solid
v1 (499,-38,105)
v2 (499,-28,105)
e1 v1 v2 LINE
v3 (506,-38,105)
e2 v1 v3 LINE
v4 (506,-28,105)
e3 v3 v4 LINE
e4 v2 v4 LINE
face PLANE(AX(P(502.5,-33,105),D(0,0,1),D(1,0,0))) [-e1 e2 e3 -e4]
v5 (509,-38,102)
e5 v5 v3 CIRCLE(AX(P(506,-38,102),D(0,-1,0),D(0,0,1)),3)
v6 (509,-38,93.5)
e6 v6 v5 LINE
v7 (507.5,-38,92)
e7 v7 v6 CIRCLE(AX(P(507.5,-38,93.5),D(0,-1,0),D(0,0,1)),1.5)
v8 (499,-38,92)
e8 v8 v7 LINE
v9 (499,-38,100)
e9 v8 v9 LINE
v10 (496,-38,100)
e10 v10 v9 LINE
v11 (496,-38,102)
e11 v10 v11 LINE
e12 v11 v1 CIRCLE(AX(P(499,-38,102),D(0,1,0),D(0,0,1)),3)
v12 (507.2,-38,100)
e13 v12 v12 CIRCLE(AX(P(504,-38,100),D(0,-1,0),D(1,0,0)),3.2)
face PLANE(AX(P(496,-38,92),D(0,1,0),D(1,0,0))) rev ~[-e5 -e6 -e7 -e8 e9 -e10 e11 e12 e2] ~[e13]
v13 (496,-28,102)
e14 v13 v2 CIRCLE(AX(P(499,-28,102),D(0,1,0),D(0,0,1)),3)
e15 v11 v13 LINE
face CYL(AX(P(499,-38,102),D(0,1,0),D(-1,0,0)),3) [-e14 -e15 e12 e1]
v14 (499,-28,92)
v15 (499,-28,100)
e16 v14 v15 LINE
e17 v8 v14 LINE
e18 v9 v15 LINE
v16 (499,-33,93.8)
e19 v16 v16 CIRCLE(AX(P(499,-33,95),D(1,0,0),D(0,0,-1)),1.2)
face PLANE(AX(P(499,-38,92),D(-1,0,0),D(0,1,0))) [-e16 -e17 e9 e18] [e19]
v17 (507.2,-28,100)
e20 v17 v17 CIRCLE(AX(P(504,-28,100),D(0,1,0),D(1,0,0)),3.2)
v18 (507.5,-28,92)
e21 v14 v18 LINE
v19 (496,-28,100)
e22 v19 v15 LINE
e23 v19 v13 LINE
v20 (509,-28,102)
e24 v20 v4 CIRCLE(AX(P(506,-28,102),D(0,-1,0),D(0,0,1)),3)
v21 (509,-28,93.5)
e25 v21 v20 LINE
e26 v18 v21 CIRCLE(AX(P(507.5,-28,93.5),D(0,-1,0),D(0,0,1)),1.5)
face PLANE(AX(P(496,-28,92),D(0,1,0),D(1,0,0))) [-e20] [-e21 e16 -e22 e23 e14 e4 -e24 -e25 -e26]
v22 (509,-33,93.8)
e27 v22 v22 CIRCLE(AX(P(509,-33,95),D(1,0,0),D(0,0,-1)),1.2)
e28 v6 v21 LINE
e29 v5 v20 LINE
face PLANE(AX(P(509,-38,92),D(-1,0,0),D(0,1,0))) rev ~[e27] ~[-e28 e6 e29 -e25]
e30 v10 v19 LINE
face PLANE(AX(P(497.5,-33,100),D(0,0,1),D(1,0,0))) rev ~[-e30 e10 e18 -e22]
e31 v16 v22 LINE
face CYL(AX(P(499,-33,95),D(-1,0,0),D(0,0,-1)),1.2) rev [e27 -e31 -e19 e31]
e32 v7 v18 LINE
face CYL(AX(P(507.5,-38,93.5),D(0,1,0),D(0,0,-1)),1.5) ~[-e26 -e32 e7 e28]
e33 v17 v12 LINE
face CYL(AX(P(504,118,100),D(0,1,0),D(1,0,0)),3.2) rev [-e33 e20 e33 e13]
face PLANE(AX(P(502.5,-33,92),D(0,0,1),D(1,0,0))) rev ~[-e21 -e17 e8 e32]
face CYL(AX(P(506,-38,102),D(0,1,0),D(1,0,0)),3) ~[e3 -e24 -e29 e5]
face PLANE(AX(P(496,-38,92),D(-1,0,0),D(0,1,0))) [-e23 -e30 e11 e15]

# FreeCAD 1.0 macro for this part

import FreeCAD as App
import Part
import Sketcher

V = App.Vector
Q = App.Units.Quantity


def edges_at(feature, points):
    """Names of the edges that pass closest to the given points."""
    edges = feature.Shape.Edges
    near = lambda p: min(range(len(edges)), key=lambda i: edges[i].distToShape(Part.Vertex(*p))[0])
    return sorted({f"Edge{near(p) + 1}" for p in points})


def add_polygon(sketch, points):
    """Adds a closed chain of lines whose ends are joined by coincident constraints."""
    first, n = sketch.GeometryCount, len(points)
    for a, b in zip(points, points[1:] + points[:1]):
        sketch.addGeometry(Part.LineSegment(App.Vector(*a, 0), App.Vector(*b, 0)), False)
    for i in range(n):
        sketch.addConstraint(Sketcher.Constraint("Coincident", first + i, 2, first + (i + 1) % n, 1))

doc = App.newDocument("Part")
body = doc.addObject("PartDesign::Body", "Body")

sketch1 = body.newObject("Sketcher::SketchObject", "Sketch")
sketch1.AttachmentSupport = (doc.getObject("XY_Plane"), [""])
sketch1.MapMode = "FlatFace"
sketch1.addGeometry(Part.Circle(V(0, 0, 0), V(0, 0, 1), 3.2), False)
sketch1.addConstraint(Sketcher.Constraint("Coincident", 0, 3, -1, 1))
sketch1.addConstraint(Sketcher.Constraint("Diameter", 0, Q("6.4 mm")))
pad1 = body.newObject("PartDesign::Pad", "Pad")
pad1.Profile = sketch1
pad1.Length = 156
body2 = doc.addObject("PartDesign::Body", "Body001")
doc.recompute()

body.Placement = App.Placement(V(0, 0, 0), App.Rotation(V(1, 0, 0), 90))
boolean = body2.newObject("PartDesign::Boolean", "Boolean")
boolean.Type = "Fuse"
boolean.addObjects([body])
body3 = doc.addObject("PartDesign::Body", "Body002")
doc.recompute()

body2.Placement = App.Placement(V(504, 118, 100), App.Rotation(V(0, 0, 1), 0))
boolean2 = body3.newObject("PartDesign::Boolean", "Boolean001")
boolean2.Type = "Fuse"
boolean2.addObjects([body2])
body4 = doc.addObject("PartDesign::Body", "Body003")

sketch2 = body4.newObject("Sketcher::SketchObject", "Sketch001")
sketch2.AttachmentSupport = (doc.getObject("XY_Plane003"), [""])
sketch2.MapMode = "FlatFace"
sketch2.addGeometry(Part.Circle(V(0, 0, 0), V(0, 0, 1), 1.2), False)
sketch2.addConstraint(Sketcher.Constraint("Coincident", 0, 3, -1, 1))
sketch2.addConstraint(Sketcher.Constraint("Diameter", 0, Q("2.4 mm")))
pad2 = body4.newObject("PartDesign::Pad", "Pad001")
pad2.Profile = sketch2
pad2.Length = 10
body5 = doc.addObject("PartDesign::Body", "Body004")
doc.recompute()

body4.Placement = App.Placement(V(0, 0, 0), App.Rotation(V(0, 1, 0), 90))
boolean3 = body5.newObject("PartDesign::Boolean", "Boolean002")
boolean3.Type = "Fuse"
boolean3.addObjects([body4])
body6 = doc.addObject("PartDesign::Body", "Body005")
doc.recompute()

body5.Placement = App.Placement(V(499, -33, 95), App.Rotation(V(0, 0, 1), 0))
boolean4 = body6.newObject("PartDesign::Boolean", "Boolean003")
boolean4.Type = "Fuse"
boolean4.addObjects([body5])
body7 = doc.addObject("PartDesign::Body", "Body006")

sketch3 = body7.newObject("Sketcher::SketchObject", "Sketch002")
sketch3.AttachmentSupport = (doc.getObject("XY_Plane006"), [""])
sketch3.MapMode = "FlatFace"
sketch3.AttachmentOffset = App.Placement(V(0, 0, 92), App.Rotation())
add_polygon(sketch3, [(499, -28), (499, -38), (502, -38), (502, -28)])
sketch3.addConstraint(Sketcher.Constraint("Vertical", 0))
sketch3.addConstraint(Sketcher.Constraint("Horizontal", 1))
sketch3.addConstraint(Sketcher.Constraint("Vertical", 2))
sketch3.addConstraint(Sketcher.Constraint("Horizontal", 3))
sketch3.addConstraint(Sketcher.Constraint("DistanceX", 1, 1, 1, 2, Q("3 mm")))
sketch3.addConstraint(Sketcher.Constraint("DistanceY", 0, 2, 0, 1, Q("10 mm")))
sketch3.addConstraint(Sketcher.Constraint("DistanceX", -1, 1, 0, 2, Q("499 mm")))
sketch3.addConstraint(Sketcher.Constraint("DistanceY", 0, 2, -1, 1, Q("38 mm")))
pad3 = body7.newObject("PartDesign::Pad", "Pad002")
pad3.Profile = sketch3
pad3.Length = 8
body8 = doc.addObject("PartDesign::Body", "Body007")

sketch4 = body8.newObject("Sketcher::SketchObject", "Sketch003")
sketch4.AttachmentSupport = (doc.getObject("XY_Plane007"), [""])
sketch4.MapMode = "FlatFace"
sketch4.AttachmentOffset = App.Placement(V(0, 0, 92), App.Rotation())
add_polygon(sketch4, [(499, -28), (499, -38), (512, -38), (512, -28)])
sketch4.addConstraint(Sketcher.Constraint("Vertical", 0))
sketch4.addConstraint(Sketcher.Constraint("Horizontal", 1))
sketch4.addConstraint(Sketcher.Constraint("Vertical", 2))
sketch4.addConstraint(Sketcher.Constraint("Horizontal", 3))
sketch4.addConstraint(Sketcher.Constraint("DistanceX", 1, 1, 1, 2, Q("13 mm")))
sketch4.addConstraint(Sketcher.Constraint("DistanceY", 0, 2, 0, 1, Q("10 mm")))
sketch4.addConstraint(Sketcher.Constraint("DistanceX", -1, 1, 0, 2, Q("499 mm")))
sketch4.addConstraint(Sketcher.Constraint("DistanceY", 0, 2, -1, 1, Q("38 mm")))
pad4 = body8.newObject("PartDesign::Pad", "Pad003")
pad4.Profile = sketch4
pad4.Length = 13
doc.recompute()

fillet = body8.newObject("PartDesign::Fillet", "Fillet")
fillet.Base = (pad4, edges_at(pad4, [(499, -33, 105), (512, -33, 105)]))
fillet.Radius = 3
doc.recompute()

fillet2 = body8.newObject("PartDesign::Fillet", "Fillet001")
fillet2.Base = (fillet, edges_at(fillet, [(512, -33, 92)]))
fillet2.Radius = 1.5
doc.recompute()

boolean5 = body8.newObject("PartDesign::Boolean", "Boolean004")
boolean5.Type = "Cut"
boolean5.addObjects([body7])
body9 = doc.addObject("PartDesign::Body", "Body008")
doc.recompute()

body8.Placement = App.Placement(V(-3, 0, 0), App.Rotation(V(0, 0, 1), 0))
boolean6 = body9.newObject("PartDesign::Boolean", "Boolean005")
boolean6.Type = "Fuse"
boolean6.addObjects([body8])
doc.recompute()

boolean7 = body9.newObject("PartDesign::Boolean", "Boolean006")
boolean7.Type = "Cut"
boolean7.addObjects([body6])
doc.recompute()

boolean8 = body9.newObject("PartDesign::Boolean", "Boolean007")
boolean8.Type = "Cut"
boolean8.addObjects([body3])

doc.recompute()
